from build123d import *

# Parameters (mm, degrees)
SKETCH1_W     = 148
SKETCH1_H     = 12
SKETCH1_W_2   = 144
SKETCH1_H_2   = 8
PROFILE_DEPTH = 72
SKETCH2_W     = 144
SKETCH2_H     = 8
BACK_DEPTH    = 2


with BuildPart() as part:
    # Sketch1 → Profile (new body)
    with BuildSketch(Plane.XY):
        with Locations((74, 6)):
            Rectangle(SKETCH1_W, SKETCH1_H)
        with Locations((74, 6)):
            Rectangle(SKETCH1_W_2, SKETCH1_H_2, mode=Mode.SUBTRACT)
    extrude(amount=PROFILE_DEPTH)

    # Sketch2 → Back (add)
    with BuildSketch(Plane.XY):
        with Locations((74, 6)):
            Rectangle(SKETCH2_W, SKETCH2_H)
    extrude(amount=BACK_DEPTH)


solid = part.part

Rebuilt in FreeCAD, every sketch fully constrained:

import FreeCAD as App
import Part
import Sketcher

V = App.Vector


def add_polygon(sketch, points):
    """Adds a closed chain of lines whose ends are joined by coincident constraints."""
    first, n = sketch.GeometryCount, len(points)
    for a, b in zip(points, points[1:] + points[:1]):
        sketch.addGeometry(Part.LineSegment(App.Vector(*a, 0), App.Vector(*b, 0)), False)
    for i in range(n):
        sketch.addConstraint(Sketcher.Constraint("Coincident", first + i, 2, first + (i + 1) % n, 1))

doc = App.newDocument("Part")
body = doc.addObject("PartDesign::Body", "Body")

# Sketch on XY plane
sketch1 = body.newObject("Sketcher::SketchObject", "Sketch")
sketch1.AttachmentSupport = (doc.getObject("XY_Plane"), [""])
sketch1.MapMode = "FlatFace"
add_polygon(sketch1, [(0, 12), (0, 0), (148, 0), (148, 12)])  # lines 0-3
add_polygon(sketch1, [(146, 2), (2, 2), (2, 10), (146, 10)])  # lines 4-7
sketch1.addConstraint(Sketcher.Constraint("Vertical", 0))
sketch1.addConstraint(Sketcher.Constraint("Horizontal", 1))
sketch1.addConstraint(Sketcher.Constraint("Vertical", 2))
sketch1.addConstraint(Sketcher.Constraint("Horizontal", 3))
sketch1.addConstraint(Sketcher.Constraint("Horizontal", 4))
sketch1.addConstraint(Sketcher.Constraint("Vertical", 5))
sketch1.addConstraint(Sketcher.Constraint("Horizontal", 6))
sketch1.addConstraint(Sketcher.Constraint("Vertical", 7))
sketch1.addConstraint(Sketcher.Constraint("Coincident", 0, 2, -1, 1))
sketch1.addConstraint(Sketcher.Constraint("DistanceX", 1, 1, 1, 2, 148.0))
sketch1.addConstraint(Sketcher.Constraint("DistanceX", 4, 2, 4, 1, 144.0))
sketch1.addConstraint(Sketcher.Constraint("DistanceY", 0, 2, 0, 1, 12.0))
sketch1.addConstraint(Sketcher.Constraint("DistanceY", 5, 1, 5, 2, 8.0))
sketch1.addConstraint(Sketcher.Constraint("DistanceX", -1, 1, 4, 2, 2.0))
sketch1.addConstraint(Sketcher.Constraint("DistanceY", -1, 1, 4, 2, 2.0))
pad1 = body.newObject("PartDesign::Pad", "Pad")
pad1.Profile = sketch1
pad1.Length = 72

# Sketch on XY plane
sketch2 = body.newObject("Sketcher::SketchObject", "Sketch001")
sketch2.AttachmentSupport = (doc.getObject("XY_Plane"), [""])
sketch2.MapMode = "FlatFace"
add_polygon(sketch2, [(2, 10), (2, 2), (146, 2), (146, 10)])  # lines 0-3
sketch2.addConstraint(Sketcher.Constraint("Vertical", 0))
sketch2.addConstraint(Sketcher.Constraint("Horizontal", 1))
sketch2.addConstraint(Sketcher.Constraint("Vertical", 2))
sketch2.addConstraint(Sketcher.Constraint("Horizontal", 3))
sketch2.addConstraint(Sketcher.Constraint("DistanceX", 1, 1, 1, 2, 144.0))
sketch2.addConstraint(Sketcher.Constraint("DistanceY", 0, 2, 0, 1, 8.0))
sketch2.addConstraint(Sketcher.Constraint("DistanceX", -1, 1, 0, 2, 2.0))
sketch2.addConstraint(Sketcher.Constraint("DistanceY", -1, 1, 0, 2, 2.0))
pad2 = body.newObject("PartDesign::Pad", "Pad001")
pad2.Profile = sketch2
pad2.Length = 2

doc.recompute()
